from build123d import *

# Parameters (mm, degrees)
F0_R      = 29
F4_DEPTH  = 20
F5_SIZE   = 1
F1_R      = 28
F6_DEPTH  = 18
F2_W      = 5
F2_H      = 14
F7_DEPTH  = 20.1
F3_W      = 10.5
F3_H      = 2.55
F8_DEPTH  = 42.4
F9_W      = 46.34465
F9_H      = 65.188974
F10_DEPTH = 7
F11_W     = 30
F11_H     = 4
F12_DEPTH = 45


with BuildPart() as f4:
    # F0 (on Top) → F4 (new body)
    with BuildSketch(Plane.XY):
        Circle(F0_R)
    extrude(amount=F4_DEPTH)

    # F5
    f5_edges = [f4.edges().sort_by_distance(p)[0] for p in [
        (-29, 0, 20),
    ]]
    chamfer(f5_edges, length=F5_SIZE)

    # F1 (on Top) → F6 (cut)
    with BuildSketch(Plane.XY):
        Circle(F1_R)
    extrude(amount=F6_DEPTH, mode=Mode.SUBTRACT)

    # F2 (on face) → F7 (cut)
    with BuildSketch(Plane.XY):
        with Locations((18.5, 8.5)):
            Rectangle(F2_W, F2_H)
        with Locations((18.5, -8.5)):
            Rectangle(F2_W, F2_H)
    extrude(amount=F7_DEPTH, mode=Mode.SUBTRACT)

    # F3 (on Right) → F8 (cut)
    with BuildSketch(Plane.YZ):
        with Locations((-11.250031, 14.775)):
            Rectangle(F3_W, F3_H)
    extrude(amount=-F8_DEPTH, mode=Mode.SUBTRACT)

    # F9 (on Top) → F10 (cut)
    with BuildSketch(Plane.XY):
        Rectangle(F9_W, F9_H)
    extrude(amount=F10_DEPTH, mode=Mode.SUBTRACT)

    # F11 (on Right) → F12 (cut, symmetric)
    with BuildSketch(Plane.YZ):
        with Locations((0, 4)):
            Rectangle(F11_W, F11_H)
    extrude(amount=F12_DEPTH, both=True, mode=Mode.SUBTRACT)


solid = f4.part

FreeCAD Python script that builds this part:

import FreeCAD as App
import Part
import Sketcher
from FreeCAD import Vector


def edges_at(feature, points):
    """Names of the edges that pass closest to the given points."""
    edges = feature.Shape.Edges
    near = lambda p: min(range(len(edges)), key=lambda i: edges[i].distToShape(Part.Vertex(*p))[0])
    return sorted({f"Edge{near(p) + 1}" for p in points})


def add_polygon(sketch, points):
    """Adds a closed chain of lines whose ends are joined by coincident constraints."""
    first, n = sketch.GeometryCount, len(points)
    for a, b in zip(points, points[1:] + points[:1]):
        sketch.addGeometry(Part.LineSegment(App.Vector(*a, 0), App.Vector(*b, 0)), False)
    for i in range(n):
        sketch.addConstraint(Sketcher.Constraint("Coincident", first + i, 2, first + (i + 1) % n, 1))

doc = App.newDocument("Part")
body = doc.addObject("PartDesign::Body", "Body")

# Sketch on XY plane
sketch1 = body.newObject("Sketcher::SketchObject", "Sketch")
sketch1.AttachmentSupport = (doc.getObject("XY_Plane"), [""])
sketch1.MapMode = "FlatFace"
sketch1.addGeometry(Part.Circle(Vector(0, 0, 0), Vector(0, 0, 1), 29), False)
sketch1.addConstraint(Sketcher.Constraint("Coincident", 0, 3, -1, 1))
sketch1.addConstraint(Sketcher.Constraint("Diameter", 0, 58.0))
pad1 = body.newObject("PartDesign::Pad", "Pad")
pad1.Profile = sketch1
pad1.Length = 20
doc.recompute()

chamfer = body.newObject("PartDesign::Chamfer", "Chamfer")
chamfer.Base = (pad1, edges_at(pad1, [(-29, 0, 20)]))
chamfer.Size = 1

# Sketch on XY plane
sketch2 = body.newObject("Sketcher::SketchObject", "Sketch001")
sketch2.AttachmentSupport = (doc.getObject("XY_Plane"), [""])
sketch2.MapMode = "FlatFace"
sketch2.addGeometry(Part.Circle(Vector(0, 0, 0), Vector(0, 0, 1), 28), False)
sketch2.addConstraint(Sketcher.Constraint("Coincident", 0, 3, -1, 1))
sketch2.addConstraint(Sketcher.Constraint("Diameter", 0, 56.0))
pocket1 = body.newObject("PartDesign::Pocket", "Pocket")
pocket1.Profile = sketch2
pocket1.Length = 18
pocket1.Reversed = True

# Sketch on XY plane
sketch3 = body.newObject("Sketcher::SketchObject", "Sketch002")
sketch3.AttachmentSupport = (doc.getObject("XY_Plane"), [""])
sketch3.MapMode = "FlatFace"
add_polygon(sketch3, [(16, 16), (16, 2), (21, 2), (21, 16)])  # lines 0-3
add_polygon(sketch3, [(16, -2), (16, -16), (21, -16), (21, -2)])  # lines 4-7
sketch3.addConstraint(Sketcher.Constraint("Vertical", 0))
sketch3.addConstraint(Sketcher.Constraint("Horizontal", 1))
sketch3.addConstraint(Sketcher.Constraint("Vertical", 2))
sketch3.addConstraint(Sketcher.Constraint("Horizontal", 3))
sketch3.addConstraint(Sketcher.Constraint("Vertical", 4))
sketch3.addConstraint(Sketcher.Constraint("Horizontal", 5))
sketch3.addConstraint(Sketcher.Constraint("Vertical", 6))
sketch3.addConstraint(Sketcher.Constraint("Horizontal", 7))
sketch3.addConstraint(Sketcher.Constraint("Symmetric", 3, 2, 4, 2, -1))
sketch3.addConstraint(Sketcher.Constraint("Symmetric", 1, 2, 6, 2, -1))
sketch3.addConstraint(Sketcher.Constraint("DistanceX", 1, 1, 1, 2, 5.0))
sketch3.addConstraint(Sketcher.Constraint("DistanceY", 0, 2, 0, 1, 14.0))
sketch3.addConstraint(Sketcher.Constraint("DistanceX", -1, 1, 0, 2, 16.0))
sketch3.addConstraint(Sketcher.Constraint("DistanceY", 4, 2, 0, 2, 17.0))
pocket2 = body.newObject("PartDesign::Pocket", "Pocket001")
pocket2.Profile = sketch3
pocket2.Length = 20.1
pocket2.Reversed = True

# Sketch on YZ plane
sketch4 = body.newObject("Sketcher::SketchObject", "Sketch003")
sketch4.AttachmentSupport = (doc.getObject("YZ_Plane"), [""])
sketch4.MapMode = "FlatFace"
add_polygon(sketch4, [(-16.5, 16.1), (-16.5, 13.5), (-6, 13.5), (-6, 16.1)])  # lines 0-3
sketch4.addConstraint(Sketcher.Constraint("Vertical", 0))
sketch4.addConstraint(Sketcher.Constraint("Horizontal", 1))
sketch4.addConstraint(Sketcher.Constraint("Vertical", 2))
sketch4.addConstraint(Sketcher.Constraint("Horizontal", 3))
sketch4.addConstraint(Sketcher.Constraint("DistanceX", 1, 1, 1, 2, 10.5))
sketch4.addConstraint(Sketcher.Constraint("DistanceY", 0, 2, 0, 1, 2.55))
sketch4.addConstraint(Sketcher.Constraint("DistanceY", -1, 1, 0, 2, 13.5))
sketch4.addConstraint(Sketcher.Constraint("DistanceX", 0, 2, -1, 1, 16.500031))
pocket3 = body.newObject("PartDesign::Pocket", "Pocket002")
pocket3.Profile = sketch4
pocket3.Length = 42.4

# Sketch on XY plane
sketch5 = body.newObject("Sketcher::SketchObject", "Sketch004")
sketch5.AttachmentSupport = (doc.getObject("XY_Plane"), [""])
sketch5.MapMode = "FlatFace"
add_polygon(sketch5, [(-23, 33), (-23, -33), (23, -33), (23, 33)])  # lines 0-3
sketch5.addConstraint(Sketcher.Constraint("Vertical", 0))
sketch5.addConstraint(Sketcher.Constraint("Horizontal", 1))
sketch5.addConstraint(Sketcher.Constraint("Vertical", 2))
sketch5.addConstraint(Sketcher.Constraint("Horizontal", 3))
sketch5.addConstraint(Sketcher.Constraint("Symmetric", 0, 2, 2, 2, -1, 1))
sketch5.addConstraint(Sketcher.Constraint("DistanceX", 1, 1, 1, 2, 46.34465))
sketch5.addConstraint(Sketcher.Constraint("DistanceY", 0, 2, 0, 1, 65.188974))
pocket4 = body.newObject("PartDesign::Pocket", "Pocket003")
pocket4.Profile = sketch5
pocket4.Length = 7
pocket4.Reversed = True

# Sketch on YZ plane
sketch6 = body.newObject("Sketcher::SketchObject", "Sketch005")
sketch6.AttachmentSupport = (doc.getObject("YZ_Plane"), [""])
sketch6.MapMode = "FlatFace"
add_polygon(sketch6, [(-15, 6), (-15, 2), (15, 2), (15, 6)])  # lines 0-3
sketch6.addConstraint(Sketcher.Constraint("Vertical", 0))
sketch6.addConstraint(Sketcher.Constraint("Horizontal", 1))
sketch6.addConstraint(Sketcher.Constraint("Vertical", 2))
sketch6.addConstraint(Sketcher.Constraint("Horizontal", 3))
sketch6.addConstraint(Sketcher.Constraint("DistanceX", 1, 1, 1, 2, 30.0))
sketch6.addConstraint(Sketcher.Constraint("DistanceY", 0, 2, 0, 1, 4.0))
sketch6.addConstraint(Sketcher.Constraint("DistanceX", 0, 2, -1, 1, 15.0))
sketch6.addConstraint(Sketcher.Constraint("DistanceY", -1, 1, 0, 2, 2.0))
pocket5 = body.newObject("PartDesign::Pocket", "Pocket004")
pocket5.Profile = sketch6
pocket5.Length = 90
pocket5.Midplane = True

doc.recompute()
